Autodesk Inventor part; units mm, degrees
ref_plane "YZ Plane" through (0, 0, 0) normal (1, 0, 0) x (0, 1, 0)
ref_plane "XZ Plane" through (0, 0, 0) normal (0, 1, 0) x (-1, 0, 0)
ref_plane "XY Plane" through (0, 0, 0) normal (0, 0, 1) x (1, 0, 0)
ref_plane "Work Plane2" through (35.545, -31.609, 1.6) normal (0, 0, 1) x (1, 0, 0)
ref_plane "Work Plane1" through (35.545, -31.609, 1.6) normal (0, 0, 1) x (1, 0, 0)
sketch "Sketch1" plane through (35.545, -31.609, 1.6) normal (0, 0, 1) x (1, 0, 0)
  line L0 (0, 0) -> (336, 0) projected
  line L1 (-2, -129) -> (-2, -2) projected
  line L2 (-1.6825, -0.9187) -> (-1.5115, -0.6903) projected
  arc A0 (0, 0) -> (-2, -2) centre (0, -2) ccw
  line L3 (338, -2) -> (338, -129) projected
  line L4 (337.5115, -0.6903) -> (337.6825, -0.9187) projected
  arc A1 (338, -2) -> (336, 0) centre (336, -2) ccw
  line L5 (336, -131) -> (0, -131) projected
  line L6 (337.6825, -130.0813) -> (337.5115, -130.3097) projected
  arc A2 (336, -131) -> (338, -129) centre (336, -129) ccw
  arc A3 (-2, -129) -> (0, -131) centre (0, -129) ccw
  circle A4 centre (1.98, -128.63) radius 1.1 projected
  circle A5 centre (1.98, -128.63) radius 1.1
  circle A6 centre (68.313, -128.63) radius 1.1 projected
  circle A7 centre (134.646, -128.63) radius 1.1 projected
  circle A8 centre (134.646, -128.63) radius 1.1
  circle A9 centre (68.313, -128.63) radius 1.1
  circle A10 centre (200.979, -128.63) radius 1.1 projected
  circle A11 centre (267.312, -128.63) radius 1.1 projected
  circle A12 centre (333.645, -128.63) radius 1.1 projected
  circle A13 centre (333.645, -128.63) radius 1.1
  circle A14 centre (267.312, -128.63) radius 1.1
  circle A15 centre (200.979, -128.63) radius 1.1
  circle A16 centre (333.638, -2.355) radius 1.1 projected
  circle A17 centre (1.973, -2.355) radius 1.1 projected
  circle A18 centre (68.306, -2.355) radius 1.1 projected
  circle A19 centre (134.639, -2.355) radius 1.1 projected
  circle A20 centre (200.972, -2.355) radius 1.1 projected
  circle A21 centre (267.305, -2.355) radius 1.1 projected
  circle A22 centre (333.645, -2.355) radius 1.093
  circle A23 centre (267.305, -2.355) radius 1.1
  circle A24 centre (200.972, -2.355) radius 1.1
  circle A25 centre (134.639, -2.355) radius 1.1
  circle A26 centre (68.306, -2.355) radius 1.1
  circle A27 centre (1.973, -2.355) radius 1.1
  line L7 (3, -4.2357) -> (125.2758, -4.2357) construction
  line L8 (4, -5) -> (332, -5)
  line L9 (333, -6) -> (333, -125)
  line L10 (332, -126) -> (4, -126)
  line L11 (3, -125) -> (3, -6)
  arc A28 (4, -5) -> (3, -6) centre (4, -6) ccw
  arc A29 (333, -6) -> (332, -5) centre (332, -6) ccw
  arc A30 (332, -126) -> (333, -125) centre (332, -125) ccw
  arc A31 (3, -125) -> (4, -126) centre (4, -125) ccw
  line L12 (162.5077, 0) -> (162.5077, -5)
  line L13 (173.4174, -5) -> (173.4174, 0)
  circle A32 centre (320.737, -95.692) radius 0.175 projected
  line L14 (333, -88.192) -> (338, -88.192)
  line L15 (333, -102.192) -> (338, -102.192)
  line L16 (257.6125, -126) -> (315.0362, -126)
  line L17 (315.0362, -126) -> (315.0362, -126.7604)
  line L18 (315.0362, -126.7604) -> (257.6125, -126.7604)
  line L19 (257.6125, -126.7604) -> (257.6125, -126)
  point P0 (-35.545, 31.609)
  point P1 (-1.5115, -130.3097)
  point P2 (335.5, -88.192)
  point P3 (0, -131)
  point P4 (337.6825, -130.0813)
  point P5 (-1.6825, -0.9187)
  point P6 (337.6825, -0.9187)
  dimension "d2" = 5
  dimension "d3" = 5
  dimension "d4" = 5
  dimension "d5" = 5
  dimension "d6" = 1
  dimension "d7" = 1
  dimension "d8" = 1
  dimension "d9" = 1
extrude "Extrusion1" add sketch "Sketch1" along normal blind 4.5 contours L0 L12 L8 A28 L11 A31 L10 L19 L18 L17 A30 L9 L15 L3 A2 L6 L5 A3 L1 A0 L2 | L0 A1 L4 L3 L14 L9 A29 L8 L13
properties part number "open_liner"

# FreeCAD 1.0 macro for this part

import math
import FreeCAD as App
import Part
import Sketcher

doc = App.newDocument("Part")
params = doc.addObject("Spreadsheet::Sheet", "Params")
for row, (alias, value) in enumerate([
    ("sketch1_radius", "1 mm"),
    ("sketch1_width", "5 mm"),
    ("sketch1_radius2", "2 mm"),
    ("sketch1_diameter", "2.2 mm"),
    ("sketch1_width2", "336 mm"),
    ("pad1_length", "4.5 mm"),
], start=1):
    params.set(f"A{row}", alias)
    params.set(f"B{row}", "=" + value)
    params.setAlias(f"B{row}", alias)

body = doc.addObject("PartDesign::Body", "Body")
body.AllowCompound = True

# Sketch on XY plane
sketch1 = doc.addObject("Sketcher::SketchObject", "Sketch")
body.addObject(sketch1)
sketch1.AttachmentSupport = (doc.XY_Plane, [""])
sketch1.MapMode = "FlatFace"
sketch1.AttachmentOffset = App.Placement(App.Vector(0, 0, 1.6), App.Rotation())
sketch1.addGeometry(Part.LineSegment(App.Vector(198.05, -31.61, 0), App.Vector(35.55, -31.61, 0)), False)
sketch1.addGeometry(Part.ArcOfCircle(Part.Circle(App.Vector(35.55, -33.61, 0), App.Vector(0, 0, 1), 2), math.radians(90), math.radians(139)), False)
sketch1.addGeometry(Part.LineSegment(App.Vector(34.03, -32.3, 0), App.Vector(33.86, -32.53, 0)), False)
sketch1.addGeometry(Part.ArcOfCircle(Part.Circle(App.Vector(35.55, -33.61, 0), App.Vector(0, 0, 1), 2), math.radians(147), math.radians(180)), False)
sketch1.addGeometry(Part.LineSegment(App.Vector(33.55, -33.61, 0), App.Vector(33.55, -160.61, 0)), False)
sketch1.addGeometry(Part.ArcOfCircle(Part.Circle(App.Vector(35.55, -160.61, 0), App.Vector(0, 0, 1), 2), math.radians(180), math.radians(270)), False)
sketch1.addGeometry(Part.LineSegment(App.Vector(35.55, -162.61, 0), App.Vector(371.55, -162.61, 0)), False)
sketch1.addGeometry(Part.ArcOfCircle(Part.Circle(App.Vector(371.55, -160.61, 0), App.Vector(0, 0, 1), 2), math.radians(-90), math.radians(-41)), False)
sketch1.addGeometry(Part.LineSegment(App.Vector(373.06, -161.92, 0), App.Vector(373.23, -161.69, 0)), False)
sketch1.addGeometry(Part.ArcOfCircle(Part.Circle(App.Vector(371.55, -160.61, 0), App.Vector(0, 0, 1), 2), math.radians(-33), math.radians(0)), False)
sketch1.addGeometry(Part.LineSegment(App.Vector(373.55, -160.61, 0), App.Vector(373.55, -133.8, 0)), False)
sketch1.addGeometry(Part.LineSegment(App.Vector(373.55, -133.8, 0), App.Vector(368.55, -133.8, 0)), False)
sketch1.addGeometry(Part.LineSegment(App.Vector(368.55, -133.8, 0), App.Vector(368.55, -156.61, 0)), False)
sketch1.addGeometry(Part.ArcOfCircle(Part.Circle(App.Vector(367.55, -156.61, 0), App.Vector(0, 0, 1), 1), math.radians(-90), math.radians(0)), False)
sketch1.addGeometry(Part.LineSegment(App.Vector(367.55, -157.61, 0), App.Vector(350.58, -157.61, 0)), False)
sketch1.addGeometry(Part.LineSegment(App.Vector(350.58, -157.61, 0), App.Vector(350.58, -158.37, 0)), False)
sketch1.addGeometry(Part.LineSegment(App.Vector(350.58, -158.37, 0), App.Vector(293.16, -158.37, 0)), False)
sketch1.addGeometry(Part.LineSegment(App.Vector(293.16, -158.37, 0), App.Vector(293.16, -157.61, 0)), False)
sketch1.addGeometry(Part.LineSegment(App.Vector(293.16, -157.61, 0), App.Vector(39.55, -157.61, 0)), False)
sketch1.addGeometry(Part.ArcOfCircle(Part.Circle(App.Vector(39.55, -156.61, 0), App.Vector(0, 0, 1), 1), math.radians(180), math.radians(270)), False)
sketch1.addGeometry(Part.LineSegment(App.Vector(38.55, -156.61, 0), App.Vector(38.55, -37.61, 0)), False)
sketch1.addGeometry(Part.ArcOfCircle(Part.Circle(App.Vector(39.55, -37.61, 0), App.Vector(0, 0, 1), 1), math.radians(90), math.radians(180)), False)
sketch1.addGeometry(Part.LineSegment(App.Vector(39.55, -36.61, 0), App.Vector(198.05, -36.61, 0)), False)
sketch1.addGeometry(Part.LineSegment(App.Vector(198.05, -36.61, 0), App.Vector(198.05, -31.61, 0)), False)
sketch1.addGeometry(Part.Circle(App.Vector(37.52, -160.24, 0), App.Vector(0, 0, 1), 1.1), False)
sketch1.addGeometry(Part.Circle(App.Vector(103.86, -160.24, 0), App.Vector(0, 0, 1), 1.1), False)
sketch1.addGeometry(Part.Circle(App.Vector(170.19, -160.24, 0), App.Vector(0, 0, 1), 1.1), False)
sketch1.addGeometry(Part.Circle(App.Vector(236.52, -160.24, 0), App.Vector(0, 0, 1), 1.1), False)
sketch1.addGeometry(Part.Circle(App.Vector(302.86, -160.24, 0), App.Vector(0, 0, 1), 1.1), False)
sketch1.addGeometry(Part.Circle(App.Vector(369.19, -160.24, 0), App.Vector(0, 0, 1), 1.1), False)
sketch1.addGeometry(Part.Circle(App.Vector(37.52, -33.96, 0), App.Vector(0, 0, 1), 1.1), False)
sketch1.addGeometry(Part.Circle(App.Vector(103.85, -33.96, 0), App.Vector(0, 0, 1), 1.1), False)
sketch1.addGeometry(Part.Circle(App.Vector(170.18, -33.96, 0), App.Vector(0, 0, 1), 1.1), False)
sketch1.addGeometry(Part.LineSegment(App.Vector(371.55, -31.61, 0), App.Vector(208.96, -31.61, 0)), False)
sketch1.addGeometry(Part.LineSegment(App.Vector(208.96, -31.61, 0), App.Vector(208.96, -36.61, 0)), False)
sketch1.addGeometry(Part.LineSegment(App.Vector(208.96, -36.61, 0), App.Vector(367.55, -36.61, 0)), False)
sketch1.addGeometry(Part.ArcOfCircle(Part.Circle(App.Vector(367.55, -37.61, 0), App.Vector(0, 0, 1), 1), math.radians(0), math.radians(90)), False)
sketch1.addGeometry(Part.LineSegment(App.Vector(368.55, -37.61, 0), App.Vector(368.55, -119.8, 0)), False)
sketch1.addGeometry(Part.LineSegment(App.Vector(368.55, -119.8, 0), App.Vector(373.55, -119.8, 0)), False)
sketch1.addGeometry(Part.LineSegment(App.Vector(373.55, -119.8, 0), App.Vector(373.55, -33.61, 0)), False)
sketch1.addGeometry(Part.ArcOfCircle(Part.Circle(App.Vector(371.55, -33.61, 0), App.Vector(0, 0, 1), 2), math.radians(0), math.radians(33)), False)
sketch1.addGeometry(Part.LineSegment(App.Vector(373.23, -32.53, 0), App.Vector(373.06, -32.3, 0)), False)
sketch1.addGeometry(Part.ArcOfCircle(Part.Circle(App.Vector(371.55, -33.61, 0), App.Vector(0, 0, 1), 2), math.radians(41), math.radians(90)), False)
sketch1.addGeometry(Part.Circle(App.Vector(236.52, -33.96, 0), App.Vector(0, 0, 1), 1.1), False)
sketch1.addGeometry(Part.Circle(App.Vector(302.85, -33.96, 0), App.Vector(0, 0, 1), 1.1), False)
sketch1.addGeometry(Part.Circle(App.Vector(369.18, -33.96, 0), App.Vector(0, 0, 1), 1.1), False)
sketch1.addConstraint(Sketcher.Constraint("Tangent", 0, 2, 1, 1))
sketch1.addConstraint(Sketcher.Constraint("Coincident", 1, 2, 2, 1))
sketch1.addConstraint(Sketcher.Constraint("Coincident", 2, 2, 3, 1))
sketch1.addConstraint(Sketcher.Constraint("Tangent", 3, 2, 4, 1))
sketch1.addConstraint(Sketcher.Constraint("Tangent", 4, 2, 5, 1))
sketch1.addConstraint(Sketcher.Constraint("Tangent", 5, 2, 6, 1))
sketch1.addConstraint(Sketcher.Constraint("Tangent", 6, 2, 7, 1))
sketch1.addConstraint(Sketcher.Constraint("Coincident", 7, 2, 8, 1))
sketch1.addConstraint(Sketcher.Constraint("Coincident", 8, 2, 9, 1))
sketch1.addConstraint(Sketcher.Constraint("Tangent", 9, 2, 10, 1))
sketch1.addConstraint(Sketcher.Constraint("Coincident", 10, 2, 11, 1))
sketch1.addConstraint(Sketcher.Constraint("Coincident", 11, 2, 12, 1))
sketch1.addConstraint(Sketcher.Constraint("Tangent", 12, 2, 13, 2))
sketch1.addConstraint(Sketcher.Constraint("Tangent", 13, 1, 14, 1))
sketch1.addConstraint(Sketcher.Constraint("Coincident", 14, 2, 15, 1))
sketch1.addConstraint(Sketcher.Constraint("Coincident", 15, 2, 16, 1))
sketch1.addConstraint(Sketcher.Constraint("Coincident", 16, 2, 17, 1))
sketch1.addConstraint(Sketcher.Constraint("Coincident", 17, 2, 18, 1))
sketch1.addConstraint(Sketcher.Constraint("Tangent", 18, 2, 19, 2))
sketch1.addConstraint(Sketcher.Constraint("Tangent", 19, 1, 20, 1))
sketch1.addConstraint(Sketcher.Constraint("Tangent", 20, 2, 21, 2))
sketch1.addConstraint(Sketcher.Constraint("Tangent", 21, 1, 22, 1))
sketch1.addConstraint(Sketcher.Constraint("Coincident", 22, 2, 23, 1))
sketch1.addConstraint(Sketcher.Constraint("Coincident", 23, 2, 0, 1))
sketch1.addConstraint(Sketcher.Constraint("Coincident", 33, 2, 34, 1))
sketch1.addConstraint(Sketcher.Constraint("Coincident", 34, 2, 35, 1))
sketch1.addConstraint(Sketcher.Constraint("Tangent", 35, 2, 36, 2))
sketch1.addConstraint(Sketcher.Constraint("Tangent", 36, 1, 37, 1))
sketch1.addConstraint(Sketcher.Constraint("Coincident", 37, 2, 38, 1))
sketch1.addConstraint(Sketcher.Constraint("Coincident", 38, 2, 39, 1))
sketch1.addConstraint(Sketcher.Constraint("Tangent", 39, 2, 40, 1))
sketch1.addConstraint(Sketcher.Constraint("Coincident", 40, 2, 41, 1))
sketch1.addConstraint(Sketcher.Constraint("Coincident", 41, 2, 42, 1))
sketch1.addConstraint(Sketcher.Constraint("Tangent", 42, 2, 33, 1))
sketch1.addConstraint(Sketcher.Constraint("Horizontal", 0))
sketch1.addConstraint(Sketcher.Constraint("Vertical", 4))
sketch1.addConstraint(Sketcher.Constraint("Horizontal", 6))
sketch1.addConstraint(Sketcher.Constraint("Vertical", 10))
sketch1.addConstraint(Sketcher.Constraint("Horizontal", 11))
sketch1.addConstraint(Sketcher.Constraint("Vertical", 12))
sketch1.addConstraint(Sketcher.Constraint("Horizontal", 14))
sketch1.addConstraint(Sketcher.Constraint("Vertical", 15))
sketch1.addConstraint(Sketcher.Constraint("Horizontal", 16))
sketch1.addConstraint(Sketcher.Constraint("Vertical", 17))
sketch1.addConstraint(Sketcher.Constraint("Horizontal", 18))
sketch1.addConstraint(Sketcher.Constraint("Vertical", 20))
sketch1.addConstraint(Sketcher.Constraint("Horizontal", 22))
sketch1.addConstraint(Sketcher.Constraint("Vertical", 23))
sketch1.addConstraint(Sketcher.Constraint("Horizontal", 33))
sketch1.addConstraint(Sketcher.Constraint("Vertical", 34))
sketch1.addConstraint(Sketcher.Constraint("Horizontal", 35))
sketch1.addConstraint(Sketcher.Constraint("Vertical", 37))
sketch1.addConstraint(Sketcher.Constraint("Horizontal", 38))
sketch1.addConstraint(Sketcher.Constraint("Vertical", 39))
sketch1.addConstraint(Sketcher.Constraint("Coincident", 3, 3, 1, 3))
sketch1.addConstraint(Sketcher.Constraint("Coincident", 9, 3, 7, 3))
sketch1.addConstraint(Sketcher.Constraint("Coincident", 42, 3, 40, 3))
sketch1.addConstraint(Sketcher.Constraint("Equal", 1, 3))
sketch1.addConstraint(Sketcher.Constraint("Equal", 3, 5))
sketch1.addConstraint(Sketcher.Constraint("Equal", 5, 7))
sketch1.addConstraint(Sketcher.Constraint("Equal", 7, 9))
sketch1.addConstraint(Sketcher.Constraint("Equal", 13, 19))
sketch1.addConstraint(Sketcher.Constraint("Equal", 19, 21))
sketch1.addConstraint(Sketcher.Constraint("Equal", 24, 25))
sketch1.addConstraint(Sketcher.Constraint("Equal", 25, 26))
sketch1.addConstraint(Sketcher.Constraint("Equal", 26, 27))
sketch1.addConstraint(Sketcher.Constraint("Equal", 27, 28))
sketch1.addConstraint(Sketcher.Constraint("Equal", 28, 29))
sketch1.addConstraint(Sketcher.Constraint("Equal", 29, 30))
sketch1.addConstraint(Sketcher.Constraint("Equal", 30, 31))
sketch1.addConstraint(Sketcher.Constraint("Equal", 31, 32))
sketch1.addConstraint(Sketcher.Constraint("Equal", 21, 36))
sketch1.addConstraint(Sketcher.Constraint("Equal", 9, 40))
sketch1.addConstraint(Sketcher.Constraint("Equal", 40, 42))
sketch1.addConstraint(Sketcher.Constraint("Equal", 32, 43))
sketch1.addConstraint(Sketcher.Constraint("Equal", 43, 44))
sketch1.addConstraint(Sketcher.Constraint("Equal", 44, 45))
sketch1.addConstraint(Sketcher.Constraint("Parallel", 2, 8))
sketch1.addConstraint(Sketcher.Constraint("Horizontal", 13, 3, 19, 3))
sketch1.addConstraint(Sketcher.Constraint("Horizontal", 24, 3, 25, 3))
sketch1.addConstraint(Sketcher.Constraint("Horizontal", 25, 3, 26, 3))
sketch1.addConstraint(Sketcher.Constraint("Horizontal", 26, 3, 27, 3))
sketch1.addConstraint(Sketcher.Constraint("Horizontal", 27, 3, 28, 3))
sketch1.addConstraint(Sketcher.Constraint("Horizontal", 28, 3, 29, 3))
sketch1.addConstraint(Sketcher.Constraint("Horizontal", 30, 3, 31, 3))
sketch1.addConstraint(Sketcher.Constraint("Horizontal", 31, 3, 32, 3))
sketch1.addConstraint(Sketcher.Constraint("Horizontal", 21, 3, 36, 3))
sketch1.addConstraint(Sketcher.Constraint("Horizontal", 3, 3, 40, 3))
sketch1.addConstraint(Sketcher.Constraint("Horizontal", 32, 3, 43, 3))
sketch1.addConstraint(Sketcher.Constraint("Horizontal", 43, 3, 44, 3))
sketch1.addConstraint(Sketcher.Constraint("Horizontal", 44, 3, 45, 3))
sketch1.addConstraint(Sketcher.Constraint("Horizontal", 2, 2, 40, 2))
sketch1.addConstraint(Sketcher.Constraint("Horizontal", 1, 2, 41, 2))
sketch1.addConstraint(Sketcher.Constraint("Vertical", 13, 3, 36, 3))
sketch1.addConstraint(Sketcher.Constraint("Vertical", 9, 3, 40, 3))
sketch1.addConstraint(Sketcher.Constraint("Vertical", 8, 2, 40, 2))
sketch1.addConstraint(Sketcher.Constraint("Equal", 38, 23))
sketch1.addConstraint(Sketcher.Constraint("Radius", 13, 1.0))
sketch1.addConstraint(Sketcher.Constraint("DistanceX", 11, 2, 11, 1, 5.0))
sketch1.addConstraint(Sketcher.Constraint("Radius", 1, 2.0))
sketch1.addConstraint(Sketcher.Constraint("DistanceY", 5, 2, 18, 2, 5.0))
sketch1.addConstraint(Sketcher.Constraint("DistanceX", 4, 2, 19, 1, 5.0))
sketch1.addConstraint(Sketcher.Constraint("Diameter", 24, 2.2))
sketch1.addConstraint(Sketcher.Constraint("DistanceX", 6, 1, 6, 2, 336.0))
sketch1.addConstraint(Sketcher.Constraint("DistanceY", 4, 2, 4, 1, 127.0))
sketch1.addConstraint(Sketcher.Constraint("DistanceY", 11, 2, 37, 2, 14.0))
sketch1.addConstraint(Sketcher.Constraint("DistanceY", 10, 1, 10, 2, 26.808))
sketch1.addConstraint(Sketcher.Constraint("DistanceX", -1, 1, 29, 3, 369.19))
sketch1.addConstraint(Sketcher.Constraint("DistanceX", -1, 1, 44, 3, 302.85))
sketch1.addConstraint(Sketcher.Constraint("DistanceX", 5, 3, 24, 3, 1.98))
sketch1.addConstraint(Sketcher.Constraint("DistanceY", 5, 3, 24, 3, 0.37))
sketch1.addConstraint(Sketcher.Constraint("DistanceX", 0, 2, 0, 1, 162.5077))
sketch1.addConstraint(Sketcher.Constraint("DistanceX", 14, 2, 14, 1, 16.9638))
sketch1.addConstraint(Sketcher.Constraint("DistanceX", 16, 2, 16, 1, 57.4237))
sketch1.addConstraint(Sketcher.Constraint("DistanceX", 33, 2, 33, 1, 162.5826))
sketch1.addConstraint(Sketcher.Constraint("DistanceY", 15, 2, 15, 1, 0.7604))
sketch1.addConstraint(Sketcher.Constraint("DistanceX", -1, 1, 1, 3, 35.545))
sketch1.addConstraint(Sketcher.Constraint("DistanceY", 1, 3, -1, 1, 33.609))
sketch1.addConstraint(Sketcher.Constraint("DistanceX", -1, 1, 25, 3, 103.858))
sketch1.addConstraint(Sketcher.Constraint("DistanceX", -1, 1, 26, 3, 170.191))
sketch1.addConstraint(Sketcher.Constraint("DistanceX", -1, 1, 27, 3, 236.524))
sketch1.addConstraint(Sketcher.Constraint("DistanceX", -1, 1, 28, 3, 302.857))
sketch1.addConstraint(Sketcher.Constraint("DistanceX", -1, 1, 30, 3, 37.518))
sketch1.addConstraint(Sketcher.Constraint("DistanceY", 30, 3, -1, 1, 33.964))
sketch1.addConstraint(Sketcher.Constraint("DistanceX", -1, 1, 31, 3, 103.851))
sketch1.addConstraint(Sketcher.Constraint("DistanceX", -1, 1, 32, 3, 170.184))
sketch1.addConstraint(Sketcher.Constraint("DistanceX", -1, 1, 43, 3, 236.517))
sketch1.addConstraint(Sketcher.Constraint("DistanceX", -1, 1, 45, 3, 369.183))
sketch1.addConstraint(Sketcher.Constraint("DistanceX", 2, 2, 1, 2, 0.171))
sketch1.addConstraint(Sketcher.Constraint("Distance", 2, 0.2853))
sketch1.setExpression("Constraints[97]", "Params.sketch1_radius")
sketch1.setExpression("Constraints[98]", "Params.sketch1_width")
sketch1.setExpression("Constraints[99]", "Params.sketch1_radius2")
sketch1.setExpression("Constraints[102]", "Params.sketch1_diameter")
sketch1.setExpression("Constraints[103]", "Params.sketch1_width2")
pad1 = doc.addObject("PartDesign::Pad", "Pad")
body.addObject(pad1)
pad1.Profile = sketch1
pad1.setExpression("Length", "Params.pad1_length")

doc.recompute()
